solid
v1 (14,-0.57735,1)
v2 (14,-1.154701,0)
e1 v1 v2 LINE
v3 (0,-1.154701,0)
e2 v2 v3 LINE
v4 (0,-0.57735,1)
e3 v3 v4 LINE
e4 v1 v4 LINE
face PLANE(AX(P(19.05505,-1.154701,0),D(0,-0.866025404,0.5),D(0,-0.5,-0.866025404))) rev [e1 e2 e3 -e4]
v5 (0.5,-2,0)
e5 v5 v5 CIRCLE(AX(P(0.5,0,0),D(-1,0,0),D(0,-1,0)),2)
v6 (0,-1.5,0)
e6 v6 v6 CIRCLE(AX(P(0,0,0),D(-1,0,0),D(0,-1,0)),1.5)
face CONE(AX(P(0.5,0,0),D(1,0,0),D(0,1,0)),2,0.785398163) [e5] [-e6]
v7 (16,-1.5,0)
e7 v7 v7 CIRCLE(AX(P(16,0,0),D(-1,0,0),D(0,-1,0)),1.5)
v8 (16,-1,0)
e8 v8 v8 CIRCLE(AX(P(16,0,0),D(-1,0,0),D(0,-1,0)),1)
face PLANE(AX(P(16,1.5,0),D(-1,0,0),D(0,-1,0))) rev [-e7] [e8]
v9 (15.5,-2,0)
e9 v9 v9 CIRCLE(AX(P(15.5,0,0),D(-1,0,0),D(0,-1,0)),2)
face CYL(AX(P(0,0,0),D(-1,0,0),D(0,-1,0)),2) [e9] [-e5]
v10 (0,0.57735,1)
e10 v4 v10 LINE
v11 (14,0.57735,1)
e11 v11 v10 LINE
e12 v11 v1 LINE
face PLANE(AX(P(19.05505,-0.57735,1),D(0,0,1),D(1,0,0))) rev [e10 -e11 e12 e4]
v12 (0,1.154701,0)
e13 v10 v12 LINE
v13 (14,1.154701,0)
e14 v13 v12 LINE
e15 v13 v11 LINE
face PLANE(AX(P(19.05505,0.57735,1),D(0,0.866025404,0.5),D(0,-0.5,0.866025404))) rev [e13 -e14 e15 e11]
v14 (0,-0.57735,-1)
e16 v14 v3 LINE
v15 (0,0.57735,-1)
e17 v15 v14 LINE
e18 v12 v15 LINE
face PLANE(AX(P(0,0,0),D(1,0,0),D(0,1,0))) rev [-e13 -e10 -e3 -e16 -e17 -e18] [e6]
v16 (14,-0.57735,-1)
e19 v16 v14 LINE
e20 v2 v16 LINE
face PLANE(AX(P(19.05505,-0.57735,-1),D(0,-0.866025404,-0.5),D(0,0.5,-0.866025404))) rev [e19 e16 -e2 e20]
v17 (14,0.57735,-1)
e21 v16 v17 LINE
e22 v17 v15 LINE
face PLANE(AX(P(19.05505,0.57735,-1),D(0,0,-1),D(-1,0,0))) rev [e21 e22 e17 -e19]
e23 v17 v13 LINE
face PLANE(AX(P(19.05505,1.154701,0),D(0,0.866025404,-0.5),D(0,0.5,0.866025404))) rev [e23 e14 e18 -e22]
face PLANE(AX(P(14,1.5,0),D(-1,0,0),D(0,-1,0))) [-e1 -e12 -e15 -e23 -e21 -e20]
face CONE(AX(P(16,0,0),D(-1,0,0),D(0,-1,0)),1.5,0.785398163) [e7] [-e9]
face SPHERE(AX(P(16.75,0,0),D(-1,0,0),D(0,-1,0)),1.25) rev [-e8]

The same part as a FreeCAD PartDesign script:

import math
import FreeCAD as App
import Part
import Sketcher

V = App.Vector
Q = App.Units.Quantity

doc = App.newDocument("Part")
body = doc.addObject("PartDesign::Body", "Body")

sketch1 = body.newObject("Sketcher::SketchObject", "Sketch")
sketch1.AttachmentSupport = (doc.getObject("XY_Plane"), [""])
sketch1.MapMode = "FlatFace"
sketch1.addGeometry([
    Part.LineSegment(V(0, 1.5, 0), V(0, 0, 0)),
    Part.LineSegment(V(0, 0, 0), V(15.5, 0, 0)),
    Part.ArcOfCircle(Part.Circle(V(16.8, 0, 0), V(0, 0, 1), 1.2), math.radians(127), math.radians(180)),
    Part.LineSegment(V(16, 1, 0), V(16, 1.5, 0)),
    Part.LineSegment(V(16, 1.5, 0), V(15.5, 2, 0)),
    Part.LineSegment(V(15.5, 2, 0), V(0.5, 2, 0)),
    Part.LineSegment(V(0.5, 2, 0), V(0, 1.5, 0)),
], False)
sketch1.addConstraint([
    Sketcher.Constraint("Coincident", 0, 2, 1, 1),
    Sketcher.Constraint("Coincident", 1, 2, 2, 2),
    Sketcher.Constraint("Coincident", 2, 1, 3, 1),
    Sketcher.Constraint("Coincident", 3, 2, 4, 1),
    Sketcher.Constraint("Coincident", 4, 2, 5, 1),
    Sketcher.Constraint("Coincident", 5, 2, 6, 1),
    Sketcher.Constraint("Coincident", 6, 2, 0, 1),
    Sketcher.Constraint("Vertical", 0),
    Sketcher.Constraint("Horizontal", 1),
    Sketcher.Constraint("Vertical", 3),
    Sketcher.Constraint("Horizontal", 5),
    Sketcher.Constraint("Coincident", 0, 2, -1, 1),
    Sketcher.Constraint("PointOnObject", 2, 3, -1),
    Sketcher.Constraint("Perpendicular", 4, 6),
    Sketcher.Constraint("Horizontal", 3, 2, 6, 2),
    Sketcher.Constraint("Vertical", 1, 2, 4, 2),
    Sketcher.Constraint("Equal", 4, 6),
    Sketcher.Constraint("DistanceX", 5, 2, 5, 1, Q("15 mm")),
    Sketcher.Constraint("Radius", 2, Q("1.25 mm")),
    Sketcher.Constraint("DistanceX", 1, 1, 1, 2, Q("15.5 mm")),
    Sketcher.Constraint("DistanceY", 0, 2, 0, 1, Q("1.5 mm")),
])
revolution = body.newObject("PartDesign::Revolution", "Revolution")
revolution.Profile = sketch1
revolution.ReferenceAxis = (sketch1, ["H_Axis"])
revolution.Angle = 360

sketch2 = body.newObject("Sketcher::SketchObject", "Sketch001")
sketch2.AttachmentSupport = (doc.getObject("YZ_Plane"), [""])
sketch2.MapMode = "FlatFace"
sketch2.addGeometry([
    Part.LineSegment(V(1.2, 0, 0), V(0.6, -1, 0)),
    Part.LineSegment(V(0.6, -1, 0), V(-0.6, -1, 0)),
    Part.LineSegment(V(-0.6, -1, 0), V(-1.2, 0, 0)),
    Part.LineSegment(V(-1.2, 0, 0), V(-0.6, 1, 0)),
    Part.LineSegment(V(-0.6, 1, 0), V(0.6, 1, 0)),
    Part.LineSegment(V(0.6, 1, 0), V(1.2, 0, 0)),
], False)
sketch2.addConstraint([
    Sketcher.Constraint("Coincident", 0, 2, 1, 1),
    Sketcher.Constraint("Coincident", 1, 2, 2, 1),
    Sketcher.Constraint("Coincident", 2, 2, 3, 1),
    Sketcher.Constraint("Coincident", 3, 2, 4, 1),
    Sketcher.Constraint("Coincident", 4, 2, 5, 1),
    Sketcher.Constraint("Coincident", 5, 2, 0, 1),
    Sketcher.Constraint("Horizontal", 1),
    Sketcher.Constraint("Horizontal", 4),
    Sketcher.Constraint("Symmetric", 0, 2, 3, 2, -1, 1),
    Sketcher.Constraint("Symmetric", 2, 2, 5, 2, -1, 1),
    Sketcher.Constraint("PointOnObject", 2, 2, -1),
    Sketcher.Constraint("Parallel", 2, 5),
    Sketcher.Constraint("Vertical", 1, 2, 3, 2),
    Sketcher.Constraint("Angle", 0, Q("-120 deg")),
    Sketcher.Constraint("DistanceY", 0, 2, -1, 1, Q("1 mm")),
    Sketcher.Constraint("DistanceX", 1, 2, 1, 1, Q("1.154701 mm")),
])
pocket1 = body.newObject("PartDesign::Pocket", "Pocket")
pocket1.Profile = sketch2
pocket1.Length = 14
pocket1.Reversed = True

doc.recompute()
